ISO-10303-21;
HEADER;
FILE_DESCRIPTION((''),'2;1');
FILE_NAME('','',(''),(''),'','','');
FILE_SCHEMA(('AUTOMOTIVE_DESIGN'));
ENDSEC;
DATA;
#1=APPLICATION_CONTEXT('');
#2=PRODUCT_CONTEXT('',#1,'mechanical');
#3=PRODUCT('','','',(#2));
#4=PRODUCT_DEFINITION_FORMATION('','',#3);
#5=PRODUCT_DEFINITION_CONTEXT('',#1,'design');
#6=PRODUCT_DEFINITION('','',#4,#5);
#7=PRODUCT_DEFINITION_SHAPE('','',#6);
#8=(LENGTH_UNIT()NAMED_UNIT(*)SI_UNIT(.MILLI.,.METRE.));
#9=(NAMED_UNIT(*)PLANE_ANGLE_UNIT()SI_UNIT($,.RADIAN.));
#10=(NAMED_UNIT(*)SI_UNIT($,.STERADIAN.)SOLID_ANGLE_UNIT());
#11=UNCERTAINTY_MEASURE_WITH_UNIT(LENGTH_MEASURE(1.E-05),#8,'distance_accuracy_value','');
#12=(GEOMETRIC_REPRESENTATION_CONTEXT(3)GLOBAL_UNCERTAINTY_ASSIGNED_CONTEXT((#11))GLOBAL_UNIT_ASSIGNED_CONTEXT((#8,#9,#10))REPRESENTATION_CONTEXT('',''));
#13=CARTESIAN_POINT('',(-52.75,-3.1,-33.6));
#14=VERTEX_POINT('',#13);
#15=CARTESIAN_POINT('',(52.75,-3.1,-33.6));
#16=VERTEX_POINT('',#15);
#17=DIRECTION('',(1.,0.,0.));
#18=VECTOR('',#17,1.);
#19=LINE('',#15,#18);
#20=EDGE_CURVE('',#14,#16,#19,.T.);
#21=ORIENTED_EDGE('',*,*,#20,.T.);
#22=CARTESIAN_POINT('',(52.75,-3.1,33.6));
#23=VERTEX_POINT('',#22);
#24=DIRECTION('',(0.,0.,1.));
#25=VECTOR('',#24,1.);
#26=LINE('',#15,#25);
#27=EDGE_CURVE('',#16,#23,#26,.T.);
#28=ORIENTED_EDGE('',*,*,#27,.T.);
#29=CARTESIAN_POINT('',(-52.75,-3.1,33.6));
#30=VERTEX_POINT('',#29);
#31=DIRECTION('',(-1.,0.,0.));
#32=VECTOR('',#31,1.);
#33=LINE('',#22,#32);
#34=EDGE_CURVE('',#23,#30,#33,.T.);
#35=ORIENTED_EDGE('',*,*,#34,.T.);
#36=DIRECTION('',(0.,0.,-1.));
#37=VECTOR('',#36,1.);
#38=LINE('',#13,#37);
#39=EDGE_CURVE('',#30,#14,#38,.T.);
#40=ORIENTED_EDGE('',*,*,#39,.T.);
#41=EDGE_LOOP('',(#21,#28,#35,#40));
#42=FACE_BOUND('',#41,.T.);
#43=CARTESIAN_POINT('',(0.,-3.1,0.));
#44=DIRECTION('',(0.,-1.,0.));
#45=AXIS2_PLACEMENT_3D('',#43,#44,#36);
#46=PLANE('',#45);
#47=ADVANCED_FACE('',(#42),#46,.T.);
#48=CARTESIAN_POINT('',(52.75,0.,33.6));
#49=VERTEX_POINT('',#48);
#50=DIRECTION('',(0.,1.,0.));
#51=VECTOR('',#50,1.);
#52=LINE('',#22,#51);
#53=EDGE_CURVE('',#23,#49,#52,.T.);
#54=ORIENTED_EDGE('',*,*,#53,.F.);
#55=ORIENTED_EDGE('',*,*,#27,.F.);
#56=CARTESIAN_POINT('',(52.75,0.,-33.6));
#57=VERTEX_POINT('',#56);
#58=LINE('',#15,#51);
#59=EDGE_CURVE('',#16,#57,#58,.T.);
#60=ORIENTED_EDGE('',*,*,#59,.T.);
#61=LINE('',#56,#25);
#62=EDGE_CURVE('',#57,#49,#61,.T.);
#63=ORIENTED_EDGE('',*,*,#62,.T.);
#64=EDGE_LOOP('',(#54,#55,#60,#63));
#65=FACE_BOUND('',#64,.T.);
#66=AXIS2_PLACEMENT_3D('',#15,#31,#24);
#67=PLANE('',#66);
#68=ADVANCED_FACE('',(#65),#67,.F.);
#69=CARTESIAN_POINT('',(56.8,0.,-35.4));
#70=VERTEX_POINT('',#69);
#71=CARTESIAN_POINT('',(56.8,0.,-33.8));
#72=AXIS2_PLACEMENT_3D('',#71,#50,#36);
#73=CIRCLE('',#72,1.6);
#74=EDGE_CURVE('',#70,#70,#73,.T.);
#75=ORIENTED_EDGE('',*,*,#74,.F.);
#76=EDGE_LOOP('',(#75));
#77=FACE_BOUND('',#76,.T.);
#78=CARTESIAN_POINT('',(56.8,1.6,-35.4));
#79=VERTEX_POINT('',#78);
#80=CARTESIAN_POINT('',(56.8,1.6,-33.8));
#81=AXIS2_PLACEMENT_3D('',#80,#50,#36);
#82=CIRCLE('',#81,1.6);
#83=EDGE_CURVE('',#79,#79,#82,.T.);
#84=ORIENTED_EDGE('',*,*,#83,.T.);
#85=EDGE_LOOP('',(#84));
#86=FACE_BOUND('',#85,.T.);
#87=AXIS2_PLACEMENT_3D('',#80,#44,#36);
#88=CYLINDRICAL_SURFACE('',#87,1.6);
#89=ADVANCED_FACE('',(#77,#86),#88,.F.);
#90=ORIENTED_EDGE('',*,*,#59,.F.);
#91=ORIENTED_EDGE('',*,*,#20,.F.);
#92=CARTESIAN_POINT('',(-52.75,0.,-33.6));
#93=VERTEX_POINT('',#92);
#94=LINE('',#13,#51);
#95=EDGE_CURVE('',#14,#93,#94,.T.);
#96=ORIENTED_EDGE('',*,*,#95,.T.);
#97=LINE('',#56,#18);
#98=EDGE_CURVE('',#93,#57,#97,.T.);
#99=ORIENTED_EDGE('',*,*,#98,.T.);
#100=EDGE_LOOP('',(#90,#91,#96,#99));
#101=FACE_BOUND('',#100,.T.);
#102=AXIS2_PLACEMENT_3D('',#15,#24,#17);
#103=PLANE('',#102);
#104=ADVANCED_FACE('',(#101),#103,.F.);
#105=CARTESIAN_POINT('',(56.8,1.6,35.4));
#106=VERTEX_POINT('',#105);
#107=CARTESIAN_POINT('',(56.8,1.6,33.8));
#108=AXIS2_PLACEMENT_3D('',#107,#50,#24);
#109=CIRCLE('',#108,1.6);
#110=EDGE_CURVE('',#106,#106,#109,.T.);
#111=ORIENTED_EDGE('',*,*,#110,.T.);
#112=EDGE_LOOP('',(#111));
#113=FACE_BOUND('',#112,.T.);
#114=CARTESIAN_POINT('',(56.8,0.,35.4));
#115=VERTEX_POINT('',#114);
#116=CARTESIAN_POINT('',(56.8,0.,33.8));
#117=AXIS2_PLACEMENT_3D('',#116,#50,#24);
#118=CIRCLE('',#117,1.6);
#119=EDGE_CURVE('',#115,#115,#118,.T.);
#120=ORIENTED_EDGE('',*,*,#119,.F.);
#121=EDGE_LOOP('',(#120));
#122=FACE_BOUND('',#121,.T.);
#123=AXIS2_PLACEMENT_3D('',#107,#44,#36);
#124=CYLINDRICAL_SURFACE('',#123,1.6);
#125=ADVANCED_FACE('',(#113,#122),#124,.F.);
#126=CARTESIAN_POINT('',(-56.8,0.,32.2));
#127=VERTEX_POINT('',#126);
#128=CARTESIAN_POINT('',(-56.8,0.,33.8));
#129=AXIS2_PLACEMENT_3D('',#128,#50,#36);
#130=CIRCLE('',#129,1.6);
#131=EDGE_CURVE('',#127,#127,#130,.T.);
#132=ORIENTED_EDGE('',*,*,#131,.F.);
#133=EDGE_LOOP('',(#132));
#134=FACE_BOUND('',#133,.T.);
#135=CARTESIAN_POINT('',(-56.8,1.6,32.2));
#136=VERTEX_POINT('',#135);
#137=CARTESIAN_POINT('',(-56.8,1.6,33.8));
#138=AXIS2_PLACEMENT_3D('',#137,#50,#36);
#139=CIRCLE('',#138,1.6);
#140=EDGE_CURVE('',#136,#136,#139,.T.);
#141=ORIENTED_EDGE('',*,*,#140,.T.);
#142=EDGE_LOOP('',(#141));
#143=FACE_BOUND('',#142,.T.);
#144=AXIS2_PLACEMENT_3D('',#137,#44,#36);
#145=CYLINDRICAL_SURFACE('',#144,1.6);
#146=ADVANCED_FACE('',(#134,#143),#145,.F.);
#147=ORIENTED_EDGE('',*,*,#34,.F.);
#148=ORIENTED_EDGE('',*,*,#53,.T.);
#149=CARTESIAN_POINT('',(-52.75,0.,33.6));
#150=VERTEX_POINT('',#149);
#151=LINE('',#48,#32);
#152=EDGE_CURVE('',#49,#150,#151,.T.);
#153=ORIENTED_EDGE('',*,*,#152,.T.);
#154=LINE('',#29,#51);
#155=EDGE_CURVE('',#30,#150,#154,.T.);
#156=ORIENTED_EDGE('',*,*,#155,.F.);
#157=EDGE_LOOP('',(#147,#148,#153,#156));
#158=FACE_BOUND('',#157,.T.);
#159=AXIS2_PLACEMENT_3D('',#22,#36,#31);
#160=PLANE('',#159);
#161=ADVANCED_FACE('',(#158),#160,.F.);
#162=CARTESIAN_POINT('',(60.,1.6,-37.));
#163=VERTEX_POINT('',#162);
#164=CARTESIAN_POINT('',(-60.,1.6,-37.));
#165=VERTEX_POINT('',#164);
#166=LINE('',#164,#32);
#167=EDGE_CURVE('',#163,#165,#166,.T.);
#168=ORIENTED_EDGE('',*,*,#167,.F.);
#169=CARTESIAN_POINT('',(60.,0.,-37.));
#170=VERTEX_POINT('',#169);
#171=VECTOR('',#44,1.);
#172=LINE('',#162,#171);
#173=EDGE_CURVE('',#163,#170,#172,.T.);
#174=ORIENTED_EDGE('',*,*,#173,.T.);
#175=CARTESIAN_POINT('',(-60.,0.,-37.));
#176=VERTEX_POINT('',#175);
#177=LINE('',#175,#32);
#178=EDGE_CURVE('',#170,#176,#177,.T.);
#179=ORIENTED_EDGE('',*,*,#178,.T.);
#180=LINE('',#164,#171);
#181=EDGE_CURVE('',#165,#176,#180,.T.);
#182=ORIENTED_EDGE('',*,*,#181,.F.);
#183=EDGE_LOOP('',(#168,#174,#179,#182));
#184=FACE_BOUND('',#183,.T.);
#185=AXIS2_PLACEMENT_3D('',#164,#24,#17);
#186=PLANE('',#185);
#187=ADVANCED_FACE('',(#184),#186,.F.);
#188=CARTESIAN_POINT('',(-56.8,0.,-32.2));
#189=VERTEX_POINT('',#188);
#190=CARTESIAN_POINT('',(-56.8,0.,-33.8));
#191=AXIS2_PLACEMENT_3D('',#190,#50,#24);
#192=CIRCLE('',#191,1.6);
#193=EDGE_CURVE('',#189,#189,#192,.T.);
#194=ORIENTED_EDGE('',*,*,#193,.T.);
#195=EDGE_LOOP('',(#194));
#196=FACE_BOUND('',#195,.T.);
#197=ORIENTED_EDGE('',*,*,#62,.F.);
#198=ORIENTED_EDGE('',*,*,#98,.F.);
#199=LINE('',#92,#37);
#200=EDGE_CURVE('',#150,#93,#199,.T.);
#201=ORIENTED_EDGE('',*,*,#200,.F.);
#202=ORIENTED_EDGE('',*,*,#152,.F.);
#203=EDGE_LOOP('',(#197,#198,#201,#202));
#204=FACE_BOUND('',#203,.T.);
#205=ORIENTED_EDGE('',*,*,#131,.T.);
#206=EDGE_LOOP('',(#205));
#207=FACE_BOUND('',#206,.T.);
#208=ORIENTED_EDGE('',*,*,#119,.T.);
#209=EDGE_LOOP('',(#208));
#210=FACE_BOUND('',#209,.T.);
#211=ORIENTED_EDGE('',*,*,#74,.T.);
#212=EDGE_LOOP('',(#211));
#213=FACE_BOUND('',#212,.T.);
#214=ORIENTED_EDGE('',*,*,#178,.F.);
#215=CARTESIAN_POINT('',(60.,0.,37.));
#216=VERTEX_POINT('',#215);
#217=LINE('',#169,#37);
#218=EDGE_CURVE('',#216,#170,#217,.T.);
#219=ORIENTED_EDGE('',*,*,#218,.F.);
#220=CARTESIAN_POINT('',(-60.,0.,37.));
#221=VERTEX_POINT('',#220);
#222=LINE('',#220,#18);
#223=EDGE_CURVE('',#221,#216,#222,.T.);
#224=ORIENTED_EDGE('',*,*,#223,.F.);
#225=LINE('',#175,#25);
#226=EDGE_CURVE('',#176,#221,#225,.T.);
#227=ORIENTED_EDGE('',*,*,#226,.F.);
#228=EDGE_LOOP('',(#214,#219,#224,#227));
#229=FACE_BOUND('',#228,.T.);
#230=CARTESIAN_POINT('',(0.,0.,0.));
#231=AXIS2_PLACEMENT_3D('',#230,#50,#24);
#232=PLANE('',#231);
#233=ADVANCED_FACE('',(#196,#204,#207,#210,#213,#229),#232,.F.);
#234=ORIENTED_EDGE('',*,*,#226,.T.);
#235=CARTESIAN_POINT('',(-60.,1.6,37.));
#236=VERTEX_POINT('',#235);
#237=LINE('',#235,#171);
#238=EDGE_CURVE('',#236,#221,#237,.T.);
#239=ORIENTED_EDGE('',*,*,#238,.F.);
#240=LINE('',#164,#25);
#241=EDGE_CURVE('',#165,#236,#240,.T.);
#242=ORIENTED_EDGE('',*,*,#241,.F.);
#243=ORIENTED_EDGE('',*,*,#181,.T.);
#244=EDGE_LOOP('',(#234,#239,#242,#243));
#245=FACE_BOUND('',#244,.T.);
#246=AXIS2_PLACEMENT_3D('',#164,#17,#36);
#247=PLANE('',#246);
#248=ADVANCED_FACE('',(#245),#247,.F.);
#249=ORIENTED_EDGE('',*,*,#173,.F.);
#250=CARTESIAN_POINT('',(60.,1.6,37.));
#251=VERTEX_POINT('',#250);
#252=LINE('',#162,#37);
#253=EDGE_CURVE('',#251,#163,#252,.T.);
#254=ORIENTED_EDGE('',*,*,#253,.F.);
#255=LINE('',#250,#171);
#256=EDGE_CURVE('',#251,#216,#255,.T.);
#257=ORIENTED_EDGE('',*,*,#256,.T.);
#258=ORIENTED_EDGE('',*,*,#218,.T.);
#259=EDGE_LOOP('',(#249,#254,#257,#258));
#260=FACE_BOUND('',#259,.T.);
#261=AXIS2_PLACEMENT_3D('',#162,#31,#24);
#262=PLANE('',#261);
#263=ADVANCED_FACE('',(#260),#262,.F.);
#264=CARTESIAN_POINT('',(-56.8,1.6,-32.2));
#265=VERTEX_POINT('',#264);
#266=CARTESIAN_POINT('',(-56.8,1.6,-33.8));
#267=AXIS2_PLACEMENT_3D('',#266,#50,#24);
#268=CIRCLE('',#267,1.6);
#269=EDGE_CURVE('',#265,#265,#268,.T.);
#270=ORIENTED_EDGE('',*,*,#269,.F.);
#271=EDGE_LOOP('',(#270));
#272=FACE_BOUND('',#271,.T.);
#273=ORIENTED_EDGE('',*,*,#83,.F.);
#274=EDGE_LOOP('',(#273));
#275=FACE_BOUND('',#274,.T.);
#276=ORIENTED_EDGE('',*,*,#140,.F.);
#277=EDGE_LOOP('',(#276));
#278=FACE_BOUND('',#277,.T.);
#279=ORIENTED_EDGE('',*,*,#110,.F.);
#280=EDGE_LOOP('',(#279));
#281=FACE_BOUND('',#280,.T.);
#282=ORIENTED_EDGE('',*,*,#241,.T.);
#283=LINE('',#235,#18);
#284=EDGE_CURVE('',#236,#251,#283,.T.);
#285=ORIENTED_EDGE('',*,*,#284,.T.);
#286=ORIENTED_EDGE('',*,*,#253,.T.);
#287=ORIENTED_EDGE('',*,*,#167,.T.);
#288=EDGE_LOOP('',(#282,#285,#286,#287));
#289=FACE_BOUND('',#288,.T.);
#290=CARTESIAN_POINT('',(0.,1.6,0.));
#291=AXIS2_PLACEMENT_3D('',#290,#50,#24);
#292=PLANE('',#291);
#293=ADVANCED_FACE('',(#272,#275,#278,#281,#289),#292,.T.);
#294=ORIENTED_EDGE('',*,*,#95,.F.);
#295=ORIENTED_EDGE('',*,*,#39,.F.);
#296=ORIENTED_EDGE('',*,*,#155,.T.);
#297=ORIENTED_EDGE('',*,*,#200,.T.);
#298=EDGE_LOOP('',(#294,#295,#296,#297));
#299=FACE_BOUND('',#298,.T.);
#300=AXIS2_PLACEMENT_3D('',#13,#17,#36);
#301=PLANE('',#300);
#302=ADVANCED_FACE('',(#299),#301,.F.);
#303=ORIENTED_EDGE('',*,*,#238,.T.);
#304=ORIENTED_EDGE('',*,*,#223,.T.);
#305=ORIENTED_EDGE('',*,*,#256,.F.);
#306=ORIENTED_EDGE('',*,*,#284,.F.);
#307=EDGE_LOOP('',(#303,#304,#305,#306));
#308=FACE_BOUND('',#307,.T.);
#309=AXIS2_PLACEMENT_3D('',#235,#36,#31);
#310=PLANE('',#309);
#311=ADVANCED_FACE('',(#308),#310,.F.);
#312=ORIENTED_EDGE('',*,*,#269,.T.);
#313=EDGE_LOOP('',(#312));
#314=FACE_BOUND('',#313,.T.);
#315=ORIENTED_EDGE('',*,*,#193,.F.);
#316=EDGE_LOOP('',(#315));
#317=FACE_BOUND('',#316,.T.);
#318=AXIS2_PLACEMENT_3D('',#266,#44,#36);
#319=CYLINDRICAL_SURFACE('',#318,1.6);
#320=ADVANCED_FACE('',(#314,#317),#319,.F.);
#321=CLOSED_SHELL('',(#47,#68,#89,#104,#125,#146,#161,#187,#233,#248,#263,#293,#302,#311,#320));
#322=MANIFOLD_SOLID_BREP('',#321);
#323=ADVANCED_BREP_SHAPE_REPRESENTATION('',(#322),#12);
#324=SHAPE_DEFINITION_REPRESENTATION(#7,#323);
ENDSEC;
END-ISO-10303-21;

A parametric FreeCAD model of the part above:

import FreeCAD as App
import Part
import Sketcher
from FreeCAD import Vector
Q = App.Units.Quantity

doc = App.newDocument("Part")
body = doc.addObject("PartDesign::Body", "Body")

sketch1 = body.newObject("Sketcher::SketchObject", "Sketch")
sketch1.AttachmentSupport = (doc.getObject("XZ_Plane"), [""])
sketch1.MapMode = "FlatFace"
sketch1.addGeometry(Part.LineSegment(Vector(-60, -37, 0), Vector(-60, 37, 0)), False)
sketch1.addGeometry(Part.LineSegment(Vector(-60, 37, 0), Vector(60, 37, 0)), False)
sketch1.addGeometry(Part.LineSegment(Vector(60, 37, 0), Vector(60, -37, 0)), False)
sketch1.addGeometry(Part.LineSegment(Vector(60, -37, 0), Vector(-60, -37, 0)), False)
sketch1.addGeometry(Part.Circle(Vector(-56.8, 33.8, 0), Vector(0, 0, 1), 1.6), False)
sketch1.addGeometry(Part.Circle(Vector(56.8, 33.8, 0), Vector(0, 0, 1), 1.6), False)
sketch1.addGeometry(Part.Circle(Vector(-56.8, -33.8, 0), Vector(0, 0, 1), 1.6), False)
sketch1.addGeometry(Part.Circle(Vector(56.8, -33.8, 0), Vector(0, 0, 1), 1.6), False)
sketch1.addConstraint(Sketcher.Constraint("Coincident", 0, 2, 1, 1))
sketch1.addConstraint(Sketcher.Constraint("Coincident", 1, 2, 2, 1))
sketch1.addConstraint(Sketcher.Constraint("Coincident", 2, 2, 3, 1))
sketch1.addConstraint(Sketcher.Constraint("Coincident", 3, 2, 0, 1))
sketch1.addConstraint(Sketcher.Constraint("Vertical", 0))
sketch1.addConstraint(Sketcher.Constraint("Horizontal", 1))
sketch1.addConstraint(Sketcher.Constraint("Vertical", 2))
sketch1.addConstraint(Sketcher.Constraint("Horizontal", 3))
sketch1.addConstraint(Sketcher.Constraint("Equal", 4, 5))
sketch1.addConstraint(Sketcher.Constraint("Equal", 5, 6))
sketch1.addConstraint(Sketcher.Constraint("Equal", 6, 7))
sketch1.addConstraint(Sketcher.Constraint("Symmetric", 5, 3, 6, 3, -1, 1))
sketch1.addConstraint(Sketcher.Constraint("Symmetric", 4, 3, 7, 3, -1, 1))
sketch1.addConstraint(Sketcher.Constraint("Symmetric", 0, 2, 2, 2, -1, 1))
sketch1.addConstraint(Sketcher.Constraint("Symmetric", 4, 3, 5, 3, -2))
sketch1.addConstraint(Sketcher.Constraint("Diameter", 4, Q("3.2 mm")))
sketch1.addConstraint(Sketcher.Constraint("DistanceX", 1, 1, 1, 2, Q("120 mm")))
sketch1.addConstraint(Sketcher.Constraint("DistanceY", 0, 1, 0, 2, Q("74 mm")))
sketch1.addConstraint(Sketcher.Constraint("DistanceX", 4, 3, -1, 1, Q("56.8 mm")))
sketch1.addConstraint(Sketcher.Constraint("DistanceY", -1, 1, 4, 3, Q("33.8 mm")))
pad1 = body.newObject("PartDesign::Pad", "Pad")
pad1.Profile = sketch1
pad1.Length = 1.6
pad1.Reversed = True

sketch2 = body.newObject("Sketcher::SketchObject", "Sketch001")
sketch2.AttachmentSupport = (doc.getObject("XZ_Plane"), [""])
sketch2.MapMode = "FlatFace"
sketch2.addGeometry(Part.LineSegment(Vector(-52.75, 33.6, 0), Vector(-52.75, -33.6, 0)), False)
sketch2.addGeometry(Part.LineSegment(Vector(-52.75, -33.6, 0), Vector(52.75, -33.6, 0)), False)
sketch2.addGeometry(Part.LineSegment(Vector(52.75, -33.6, 0), Vector(52.75, 33.6, 0)), False)
sketch2.addGeometry(Part.LineSegment(Vector(52.75, 33.6, 0), Vector(-52.75, 33.6, 0)), False)
sketch2.addConstraint(Sketcher.Constraint("Coincident", 0, 2, 1, 1))
sketch2.addConstraint(Sketcher.Constraint("Coincident", 1, 2, 2, 1))
sketch2.addConstraint(Sketcher.Constraint("Coincident", 2, 2, 3, 1))
sketch2.addConstraint(Sketcher.Constraint("Coincident", 3, 2, 0, 1))
sketch2.addConstraint(Sketcher.Constraint("Vertical", 0))
sketch2.addConstraint(Sketcher.Constraint("Horizontal", 1))
sketch2.addConstraint(Sketcher.Constraint("Vertical", 2))
sketch2.addConstraint(Sketcher.Constraint("Horizontal", 3))
sketch2.addConstraint(Sketcher.Constraint("Symmetric", 0, 2, 2, 2, -1, 1))
sketch2.addConstraint(Sketcher.Constraint("DistanceX", 1, 1, 1, 2, Q("105.5 mm")))
sketch2.addConstraint(Sketcher.Constraint("DistanceY", 0, 2, 0, 1, Q("67.2 mm")))
pad2 = body.newObject("PartDesign::Pad", "Pad001")
pad2.Profile = sketch2
pad2.Length = 3.1

doc.recompute()
